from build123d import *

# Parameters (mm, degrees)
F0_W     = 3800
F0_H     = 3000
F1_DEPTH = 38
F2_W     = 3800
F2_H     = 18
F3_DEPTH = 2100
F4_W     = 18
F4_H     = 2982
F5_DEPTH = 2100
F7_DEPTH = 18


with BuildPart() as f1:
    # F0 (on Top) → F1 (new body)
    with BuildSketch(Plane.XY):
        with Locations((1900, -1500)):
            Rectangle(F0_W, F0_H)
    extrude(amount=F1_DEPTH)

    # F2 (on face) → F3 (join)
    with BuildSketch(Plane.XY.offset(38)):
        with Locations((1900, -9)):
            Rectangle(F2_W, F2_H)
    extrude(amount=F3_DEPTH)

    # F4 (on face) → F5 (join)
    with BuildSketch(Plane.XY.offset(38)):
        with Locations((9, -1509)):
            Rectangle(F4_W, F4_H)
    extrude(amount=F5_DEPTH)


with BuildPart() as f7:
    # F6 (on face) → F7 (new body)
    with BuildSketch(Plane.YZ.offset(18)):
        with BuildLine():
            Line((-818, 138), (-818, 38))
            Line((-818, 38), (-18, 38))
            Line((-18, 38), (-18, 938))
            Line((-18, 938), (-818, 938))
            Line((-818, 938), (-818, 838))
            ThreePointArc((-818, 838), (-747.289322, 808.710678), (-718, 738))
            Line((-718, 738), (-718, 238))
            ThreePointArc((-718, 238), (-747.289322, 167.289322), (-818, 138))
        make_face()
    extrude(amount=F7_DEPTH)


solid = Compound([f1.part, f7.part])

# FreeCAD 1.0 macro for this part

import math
import FreeCAD as App
import Part
import Sketcher
from FreeCAD import Vector
Q = App.Units.Quantity

doc = App.newDocument("Part")
body = doc.addObject("PartDesign::Body", "Body")

# Sketch on XY plane
sketch1 = body.newObject("Sketcher::SketchObject", "Sketch")
sketch1.AttachmentSupport = (doc.getObject("XY_Plane"), [""])
sketch1.MapMode = "FlatFace"
sketch1.addGeometry([
    Part.LineSegment(Vector(0, 0, 0), Vector(0, -3000, 0)),
    Part.LineSegment(Vector(0, -3000, 0), Vector(3800, -3000, 0)),
    Part.LineSegment(Vector(3800, -3000, 0), Vector(3800, 0, 0)),
    Part.LineSegment(Vector(3800, 0, 0), Vector(0, 0, 0)),
], False)
sketch1.addConstraint([
    Sketcher.Constraint("Coincident", 0, 2, 1, 1),
    Sketcher.Constraint("Coincident", 1, 2, 2, 1),
    Sketcher.Constraint("Coincident", 2, 2, 3, 1),
    Sketcher.Constraint("Coincident", 3, 2, 0, 1),
    Sketcher.Constraint("Vertical", 0),
    Sketcher.Constraint("Horizontal", 1),
    Sketcher.Constraint("Vertical", 2),
    Sketcher.Constraint("Horizontal", 3),
    Sketcher.Constraint("Coincident", 3, 2, -1, 1),
    Sketcher.Constraint("DistanceX", 1, 1, 1, 2, Q("3800 mm")),
    Sketcher.Constraint("DistanceY", 0, 2, 0, 1, Q("3000 mm")),
])
pad1 = body.newObject("PartDesign::Pad", "Pad")
pad1.Profile = sketch1
pad1.Length = 38

# Sketch on XY plane
sketch2 = body.newObject("Sketcher::SketchObject", "Sketch001")
sketch2.AttachmentSupport = (doc.getObject("XY_Plane"), [""])
sketch2.MapMode = "FlatFace"
sketch2.AttachmentOffset = App.Placement(Vector(0, 0, 38), App.Rotation())
sketch2.addGeometry([
    Part.LineSegment(Vector(0, 0, 0), Vector(0, -18, 0)),
    Part.LineSegment(Vector(0, -18, 0), Vector(3800, -18, 0)),
    Part.LineSegment(Vector(3800, -18, 0), Vector(3800, 0, 0)),
    Part.LineSegment(Vector(3800, 0, 0), Vector(0, 0, 0)),
], False)
sketch2.addConstraint([
    Sketcher.Constraint("Coincident", 0, 2, 1, 1),
    Sketcher.Constraint("Coincident", 1, 2, 2, 1),
    Sketcher.Constraint("Coincident", 2, 2, 3, 1),
    Sketcher.Constraint("Coincident", 3, 2, 0, 1),
    Sketcher.Constraint("Vertical", 0),
    Sketcher.Constraint("Horizontal", 1),
    Sketcher.Constraint("Vertical", 2),
    Sketcher.Constraint("Horizontal", 3),
    Sketcher.Constraint("Coincident", 3, 2, -1, 1),
    Sketcher.Constraint("DistanceX", 1, 1, 1, 2, Q("3800 mm")),
    Sketcher.Constraint("DistanceY", 0, 2, 0, 1, Q("18 mm")),
])
pad2 = body.newObject("PartDesign::Pad", "Pad001")
pad2.Profile = sketch2
pad2.Length = 2100

# Sketch on XY plane
sketch3 = body.newObject("Sketcher::SketchObject", "Sketch002")
sketch3.AttachmentSupport = (doc.getObject("XY_Plane"), [""])
sketch3.MapMode = "FlatFace"
sketch3.AttachmentOffset = App.Placement(Vector(0, 0, 38), App.Rotation())
sketch3.addGeometry([
    Part.LineSegment(Vector(0, -18, 0), Vector(0, -3000, 0)),
    Part.LineSegment(Vector(0, -3000, 0), Vector(18, -3000, 0)),
    Part.LineSegment(Vector(18, -3000, 0), Vector(18, -18, 0)),
    Part.LineSegment(Vector(18, -18, 0), Vector(0, -18, 0)),
], False)
sketch3.addConstraint([
    Sketcher.Constraint("Coincident", 0, 2, 1, 1),
    Sketcher.Constraint("Coincident", 1, 2, 2, 1),
    Sketcher.Constraint("Coincident", 2, 2, 3, 1),
    Sketcher.Constraint("Coincident", 3, 2, 0, 1),
    Sketcher.Constraint("Vertical", 0),
    Sketcher.Constraint("Horizontal", 1),
    Sketcher.Constraint("Vertical", 2),
    Sketcher.Constraint("Horizontal", 3),
    Sketcher.Constraint("PointOnObject", 0, 2, -2),
    Sketcher.Constraint("DistanceX", 1, 1, 1, 2, Q("18 mm")),
    Sketcher.Constraint("DistanceY", 0, 2, 0, 1, Q("2982 mm")),
    Sketcher.Constraint("DistanceY", 0, 2, -1, 1, Q("3000 mm")),
])
pad3 = body.newObject("PartDesign::Pad", "Pad002")
pad3.Profile = sketch3
pad3.Length = 2100
body2 = doc.addObject("PartDesign::Body", "Body001")

# Sketch on YZ plane
sketch4 = body2.newObject("Sketcher::SketchObject", "Sketch003")
sketch4.AttachmentSupport = (doc.getObject("YZ_Plane001"), [""])
sketch4.MapMode = "FlatFace"
sketch4.AttachmentOffset = App.Placement(Vector(0, 0, 18), App.Rotation())
sketch4.addGeometry([
    Part.LineSegment(Vector(-818, 138, 0), Vector(-818, 38, 0)),  # 0
    Part.LineSegment(Vector(-818, 38, 0), Vector(-18, 38, 0)),  # 1
    Part.LineSegment(Vector(-18, 38, 0), Vector(-18, 938, 0)),  # 2
    Part.LineSegment(Vector(-18, 938, 0), Vector(-818, 938, 0)),  # 3
    Part.LineSegment(Vector(-818, 938, 0), Vector(-818, 838, 0)),  # 4
    Part.ArcOfCircle(Part.Circle(Vector(-818, 738, 0), Vector(0, 0, 1), 100), math.radians(0), math.radians(90)),  # 5
    Part.LineSegment(Vector(-718, 738, 0), Vector(-718, 238, 0)),  # 6
    Part.ArcOfCircle(Part.Circle(Vector(-818, 238, 0), Vector(0, 0, 1), 100), math.radians(-90), math.radians(0)),  # 7
], False)
sketch4.addConstraint([
    Sketcher.Constraint("Coincident", 0, 2, 1, 1),
    Sketcher.Constraint("Coincident", 1, 2, 2, 1),
    Sketcher.Constraint("Coincident", 2, 2, 3, 1),
    Sketcher.Constraint("Coincident", 3, 2, 4, 1),
    Sketcher.Constraint("Coincident", 4, 2, 5, 2),
    Sketcher.Constraint("Tangent", 5, 1, 6, 1),
    Sketcher.Constraint("Tangent", 6, 2, 7, 2),
    Sketcher.Constraint("Coincident", 7, 1, 0, 1),
    Sketcher.Constraint("Vertical", 0),
    Sketcher.Constraint("Horizontal", 1),
    Sketcher.Constraint("Vertical", 2),
    Sketcher.Constraint("Horizontal", 3),
    Sketcher.Constraint("Vertical", 4),
    Sketcher.Constraint("Vertical", 6),
    Sketcher.Constraint("Equal", 5, 7),
    Sketcher.Constraint("Vertical", 7, 3, 0, 2),
    Sketcher.Constraint("Vertical", 0, 2, 3, 2),
    Sketcher.Constraint("Equal", 0, 4),
    Sketcher.Constraint("Radius", 5, Q("100 mm")),
    Sketcher.Constraint("DistanceX", 1, 1, 1, 2, Q("800 mm")),
    Sketcher.Constraint("DistanceY", 0, 2, 0, 1, Q("100 mm")),
    Sketcher.Constraint("DistanceY", 2, 1, 2, 2, Q("900 mm")),
    Sketcher.Constraint("DistanceX", 5, 3, -1, 1, Q("818 mm")),
    Sketcher.Constraint("DistanceY", -1, 1, 5, 3, Q("738 mm")),
])
pad4 = body2.newObject("PartDesign::Pad", "Pad003")
pad4.Profile = sketch4
pad4.Length = 18

doc.recompute()
